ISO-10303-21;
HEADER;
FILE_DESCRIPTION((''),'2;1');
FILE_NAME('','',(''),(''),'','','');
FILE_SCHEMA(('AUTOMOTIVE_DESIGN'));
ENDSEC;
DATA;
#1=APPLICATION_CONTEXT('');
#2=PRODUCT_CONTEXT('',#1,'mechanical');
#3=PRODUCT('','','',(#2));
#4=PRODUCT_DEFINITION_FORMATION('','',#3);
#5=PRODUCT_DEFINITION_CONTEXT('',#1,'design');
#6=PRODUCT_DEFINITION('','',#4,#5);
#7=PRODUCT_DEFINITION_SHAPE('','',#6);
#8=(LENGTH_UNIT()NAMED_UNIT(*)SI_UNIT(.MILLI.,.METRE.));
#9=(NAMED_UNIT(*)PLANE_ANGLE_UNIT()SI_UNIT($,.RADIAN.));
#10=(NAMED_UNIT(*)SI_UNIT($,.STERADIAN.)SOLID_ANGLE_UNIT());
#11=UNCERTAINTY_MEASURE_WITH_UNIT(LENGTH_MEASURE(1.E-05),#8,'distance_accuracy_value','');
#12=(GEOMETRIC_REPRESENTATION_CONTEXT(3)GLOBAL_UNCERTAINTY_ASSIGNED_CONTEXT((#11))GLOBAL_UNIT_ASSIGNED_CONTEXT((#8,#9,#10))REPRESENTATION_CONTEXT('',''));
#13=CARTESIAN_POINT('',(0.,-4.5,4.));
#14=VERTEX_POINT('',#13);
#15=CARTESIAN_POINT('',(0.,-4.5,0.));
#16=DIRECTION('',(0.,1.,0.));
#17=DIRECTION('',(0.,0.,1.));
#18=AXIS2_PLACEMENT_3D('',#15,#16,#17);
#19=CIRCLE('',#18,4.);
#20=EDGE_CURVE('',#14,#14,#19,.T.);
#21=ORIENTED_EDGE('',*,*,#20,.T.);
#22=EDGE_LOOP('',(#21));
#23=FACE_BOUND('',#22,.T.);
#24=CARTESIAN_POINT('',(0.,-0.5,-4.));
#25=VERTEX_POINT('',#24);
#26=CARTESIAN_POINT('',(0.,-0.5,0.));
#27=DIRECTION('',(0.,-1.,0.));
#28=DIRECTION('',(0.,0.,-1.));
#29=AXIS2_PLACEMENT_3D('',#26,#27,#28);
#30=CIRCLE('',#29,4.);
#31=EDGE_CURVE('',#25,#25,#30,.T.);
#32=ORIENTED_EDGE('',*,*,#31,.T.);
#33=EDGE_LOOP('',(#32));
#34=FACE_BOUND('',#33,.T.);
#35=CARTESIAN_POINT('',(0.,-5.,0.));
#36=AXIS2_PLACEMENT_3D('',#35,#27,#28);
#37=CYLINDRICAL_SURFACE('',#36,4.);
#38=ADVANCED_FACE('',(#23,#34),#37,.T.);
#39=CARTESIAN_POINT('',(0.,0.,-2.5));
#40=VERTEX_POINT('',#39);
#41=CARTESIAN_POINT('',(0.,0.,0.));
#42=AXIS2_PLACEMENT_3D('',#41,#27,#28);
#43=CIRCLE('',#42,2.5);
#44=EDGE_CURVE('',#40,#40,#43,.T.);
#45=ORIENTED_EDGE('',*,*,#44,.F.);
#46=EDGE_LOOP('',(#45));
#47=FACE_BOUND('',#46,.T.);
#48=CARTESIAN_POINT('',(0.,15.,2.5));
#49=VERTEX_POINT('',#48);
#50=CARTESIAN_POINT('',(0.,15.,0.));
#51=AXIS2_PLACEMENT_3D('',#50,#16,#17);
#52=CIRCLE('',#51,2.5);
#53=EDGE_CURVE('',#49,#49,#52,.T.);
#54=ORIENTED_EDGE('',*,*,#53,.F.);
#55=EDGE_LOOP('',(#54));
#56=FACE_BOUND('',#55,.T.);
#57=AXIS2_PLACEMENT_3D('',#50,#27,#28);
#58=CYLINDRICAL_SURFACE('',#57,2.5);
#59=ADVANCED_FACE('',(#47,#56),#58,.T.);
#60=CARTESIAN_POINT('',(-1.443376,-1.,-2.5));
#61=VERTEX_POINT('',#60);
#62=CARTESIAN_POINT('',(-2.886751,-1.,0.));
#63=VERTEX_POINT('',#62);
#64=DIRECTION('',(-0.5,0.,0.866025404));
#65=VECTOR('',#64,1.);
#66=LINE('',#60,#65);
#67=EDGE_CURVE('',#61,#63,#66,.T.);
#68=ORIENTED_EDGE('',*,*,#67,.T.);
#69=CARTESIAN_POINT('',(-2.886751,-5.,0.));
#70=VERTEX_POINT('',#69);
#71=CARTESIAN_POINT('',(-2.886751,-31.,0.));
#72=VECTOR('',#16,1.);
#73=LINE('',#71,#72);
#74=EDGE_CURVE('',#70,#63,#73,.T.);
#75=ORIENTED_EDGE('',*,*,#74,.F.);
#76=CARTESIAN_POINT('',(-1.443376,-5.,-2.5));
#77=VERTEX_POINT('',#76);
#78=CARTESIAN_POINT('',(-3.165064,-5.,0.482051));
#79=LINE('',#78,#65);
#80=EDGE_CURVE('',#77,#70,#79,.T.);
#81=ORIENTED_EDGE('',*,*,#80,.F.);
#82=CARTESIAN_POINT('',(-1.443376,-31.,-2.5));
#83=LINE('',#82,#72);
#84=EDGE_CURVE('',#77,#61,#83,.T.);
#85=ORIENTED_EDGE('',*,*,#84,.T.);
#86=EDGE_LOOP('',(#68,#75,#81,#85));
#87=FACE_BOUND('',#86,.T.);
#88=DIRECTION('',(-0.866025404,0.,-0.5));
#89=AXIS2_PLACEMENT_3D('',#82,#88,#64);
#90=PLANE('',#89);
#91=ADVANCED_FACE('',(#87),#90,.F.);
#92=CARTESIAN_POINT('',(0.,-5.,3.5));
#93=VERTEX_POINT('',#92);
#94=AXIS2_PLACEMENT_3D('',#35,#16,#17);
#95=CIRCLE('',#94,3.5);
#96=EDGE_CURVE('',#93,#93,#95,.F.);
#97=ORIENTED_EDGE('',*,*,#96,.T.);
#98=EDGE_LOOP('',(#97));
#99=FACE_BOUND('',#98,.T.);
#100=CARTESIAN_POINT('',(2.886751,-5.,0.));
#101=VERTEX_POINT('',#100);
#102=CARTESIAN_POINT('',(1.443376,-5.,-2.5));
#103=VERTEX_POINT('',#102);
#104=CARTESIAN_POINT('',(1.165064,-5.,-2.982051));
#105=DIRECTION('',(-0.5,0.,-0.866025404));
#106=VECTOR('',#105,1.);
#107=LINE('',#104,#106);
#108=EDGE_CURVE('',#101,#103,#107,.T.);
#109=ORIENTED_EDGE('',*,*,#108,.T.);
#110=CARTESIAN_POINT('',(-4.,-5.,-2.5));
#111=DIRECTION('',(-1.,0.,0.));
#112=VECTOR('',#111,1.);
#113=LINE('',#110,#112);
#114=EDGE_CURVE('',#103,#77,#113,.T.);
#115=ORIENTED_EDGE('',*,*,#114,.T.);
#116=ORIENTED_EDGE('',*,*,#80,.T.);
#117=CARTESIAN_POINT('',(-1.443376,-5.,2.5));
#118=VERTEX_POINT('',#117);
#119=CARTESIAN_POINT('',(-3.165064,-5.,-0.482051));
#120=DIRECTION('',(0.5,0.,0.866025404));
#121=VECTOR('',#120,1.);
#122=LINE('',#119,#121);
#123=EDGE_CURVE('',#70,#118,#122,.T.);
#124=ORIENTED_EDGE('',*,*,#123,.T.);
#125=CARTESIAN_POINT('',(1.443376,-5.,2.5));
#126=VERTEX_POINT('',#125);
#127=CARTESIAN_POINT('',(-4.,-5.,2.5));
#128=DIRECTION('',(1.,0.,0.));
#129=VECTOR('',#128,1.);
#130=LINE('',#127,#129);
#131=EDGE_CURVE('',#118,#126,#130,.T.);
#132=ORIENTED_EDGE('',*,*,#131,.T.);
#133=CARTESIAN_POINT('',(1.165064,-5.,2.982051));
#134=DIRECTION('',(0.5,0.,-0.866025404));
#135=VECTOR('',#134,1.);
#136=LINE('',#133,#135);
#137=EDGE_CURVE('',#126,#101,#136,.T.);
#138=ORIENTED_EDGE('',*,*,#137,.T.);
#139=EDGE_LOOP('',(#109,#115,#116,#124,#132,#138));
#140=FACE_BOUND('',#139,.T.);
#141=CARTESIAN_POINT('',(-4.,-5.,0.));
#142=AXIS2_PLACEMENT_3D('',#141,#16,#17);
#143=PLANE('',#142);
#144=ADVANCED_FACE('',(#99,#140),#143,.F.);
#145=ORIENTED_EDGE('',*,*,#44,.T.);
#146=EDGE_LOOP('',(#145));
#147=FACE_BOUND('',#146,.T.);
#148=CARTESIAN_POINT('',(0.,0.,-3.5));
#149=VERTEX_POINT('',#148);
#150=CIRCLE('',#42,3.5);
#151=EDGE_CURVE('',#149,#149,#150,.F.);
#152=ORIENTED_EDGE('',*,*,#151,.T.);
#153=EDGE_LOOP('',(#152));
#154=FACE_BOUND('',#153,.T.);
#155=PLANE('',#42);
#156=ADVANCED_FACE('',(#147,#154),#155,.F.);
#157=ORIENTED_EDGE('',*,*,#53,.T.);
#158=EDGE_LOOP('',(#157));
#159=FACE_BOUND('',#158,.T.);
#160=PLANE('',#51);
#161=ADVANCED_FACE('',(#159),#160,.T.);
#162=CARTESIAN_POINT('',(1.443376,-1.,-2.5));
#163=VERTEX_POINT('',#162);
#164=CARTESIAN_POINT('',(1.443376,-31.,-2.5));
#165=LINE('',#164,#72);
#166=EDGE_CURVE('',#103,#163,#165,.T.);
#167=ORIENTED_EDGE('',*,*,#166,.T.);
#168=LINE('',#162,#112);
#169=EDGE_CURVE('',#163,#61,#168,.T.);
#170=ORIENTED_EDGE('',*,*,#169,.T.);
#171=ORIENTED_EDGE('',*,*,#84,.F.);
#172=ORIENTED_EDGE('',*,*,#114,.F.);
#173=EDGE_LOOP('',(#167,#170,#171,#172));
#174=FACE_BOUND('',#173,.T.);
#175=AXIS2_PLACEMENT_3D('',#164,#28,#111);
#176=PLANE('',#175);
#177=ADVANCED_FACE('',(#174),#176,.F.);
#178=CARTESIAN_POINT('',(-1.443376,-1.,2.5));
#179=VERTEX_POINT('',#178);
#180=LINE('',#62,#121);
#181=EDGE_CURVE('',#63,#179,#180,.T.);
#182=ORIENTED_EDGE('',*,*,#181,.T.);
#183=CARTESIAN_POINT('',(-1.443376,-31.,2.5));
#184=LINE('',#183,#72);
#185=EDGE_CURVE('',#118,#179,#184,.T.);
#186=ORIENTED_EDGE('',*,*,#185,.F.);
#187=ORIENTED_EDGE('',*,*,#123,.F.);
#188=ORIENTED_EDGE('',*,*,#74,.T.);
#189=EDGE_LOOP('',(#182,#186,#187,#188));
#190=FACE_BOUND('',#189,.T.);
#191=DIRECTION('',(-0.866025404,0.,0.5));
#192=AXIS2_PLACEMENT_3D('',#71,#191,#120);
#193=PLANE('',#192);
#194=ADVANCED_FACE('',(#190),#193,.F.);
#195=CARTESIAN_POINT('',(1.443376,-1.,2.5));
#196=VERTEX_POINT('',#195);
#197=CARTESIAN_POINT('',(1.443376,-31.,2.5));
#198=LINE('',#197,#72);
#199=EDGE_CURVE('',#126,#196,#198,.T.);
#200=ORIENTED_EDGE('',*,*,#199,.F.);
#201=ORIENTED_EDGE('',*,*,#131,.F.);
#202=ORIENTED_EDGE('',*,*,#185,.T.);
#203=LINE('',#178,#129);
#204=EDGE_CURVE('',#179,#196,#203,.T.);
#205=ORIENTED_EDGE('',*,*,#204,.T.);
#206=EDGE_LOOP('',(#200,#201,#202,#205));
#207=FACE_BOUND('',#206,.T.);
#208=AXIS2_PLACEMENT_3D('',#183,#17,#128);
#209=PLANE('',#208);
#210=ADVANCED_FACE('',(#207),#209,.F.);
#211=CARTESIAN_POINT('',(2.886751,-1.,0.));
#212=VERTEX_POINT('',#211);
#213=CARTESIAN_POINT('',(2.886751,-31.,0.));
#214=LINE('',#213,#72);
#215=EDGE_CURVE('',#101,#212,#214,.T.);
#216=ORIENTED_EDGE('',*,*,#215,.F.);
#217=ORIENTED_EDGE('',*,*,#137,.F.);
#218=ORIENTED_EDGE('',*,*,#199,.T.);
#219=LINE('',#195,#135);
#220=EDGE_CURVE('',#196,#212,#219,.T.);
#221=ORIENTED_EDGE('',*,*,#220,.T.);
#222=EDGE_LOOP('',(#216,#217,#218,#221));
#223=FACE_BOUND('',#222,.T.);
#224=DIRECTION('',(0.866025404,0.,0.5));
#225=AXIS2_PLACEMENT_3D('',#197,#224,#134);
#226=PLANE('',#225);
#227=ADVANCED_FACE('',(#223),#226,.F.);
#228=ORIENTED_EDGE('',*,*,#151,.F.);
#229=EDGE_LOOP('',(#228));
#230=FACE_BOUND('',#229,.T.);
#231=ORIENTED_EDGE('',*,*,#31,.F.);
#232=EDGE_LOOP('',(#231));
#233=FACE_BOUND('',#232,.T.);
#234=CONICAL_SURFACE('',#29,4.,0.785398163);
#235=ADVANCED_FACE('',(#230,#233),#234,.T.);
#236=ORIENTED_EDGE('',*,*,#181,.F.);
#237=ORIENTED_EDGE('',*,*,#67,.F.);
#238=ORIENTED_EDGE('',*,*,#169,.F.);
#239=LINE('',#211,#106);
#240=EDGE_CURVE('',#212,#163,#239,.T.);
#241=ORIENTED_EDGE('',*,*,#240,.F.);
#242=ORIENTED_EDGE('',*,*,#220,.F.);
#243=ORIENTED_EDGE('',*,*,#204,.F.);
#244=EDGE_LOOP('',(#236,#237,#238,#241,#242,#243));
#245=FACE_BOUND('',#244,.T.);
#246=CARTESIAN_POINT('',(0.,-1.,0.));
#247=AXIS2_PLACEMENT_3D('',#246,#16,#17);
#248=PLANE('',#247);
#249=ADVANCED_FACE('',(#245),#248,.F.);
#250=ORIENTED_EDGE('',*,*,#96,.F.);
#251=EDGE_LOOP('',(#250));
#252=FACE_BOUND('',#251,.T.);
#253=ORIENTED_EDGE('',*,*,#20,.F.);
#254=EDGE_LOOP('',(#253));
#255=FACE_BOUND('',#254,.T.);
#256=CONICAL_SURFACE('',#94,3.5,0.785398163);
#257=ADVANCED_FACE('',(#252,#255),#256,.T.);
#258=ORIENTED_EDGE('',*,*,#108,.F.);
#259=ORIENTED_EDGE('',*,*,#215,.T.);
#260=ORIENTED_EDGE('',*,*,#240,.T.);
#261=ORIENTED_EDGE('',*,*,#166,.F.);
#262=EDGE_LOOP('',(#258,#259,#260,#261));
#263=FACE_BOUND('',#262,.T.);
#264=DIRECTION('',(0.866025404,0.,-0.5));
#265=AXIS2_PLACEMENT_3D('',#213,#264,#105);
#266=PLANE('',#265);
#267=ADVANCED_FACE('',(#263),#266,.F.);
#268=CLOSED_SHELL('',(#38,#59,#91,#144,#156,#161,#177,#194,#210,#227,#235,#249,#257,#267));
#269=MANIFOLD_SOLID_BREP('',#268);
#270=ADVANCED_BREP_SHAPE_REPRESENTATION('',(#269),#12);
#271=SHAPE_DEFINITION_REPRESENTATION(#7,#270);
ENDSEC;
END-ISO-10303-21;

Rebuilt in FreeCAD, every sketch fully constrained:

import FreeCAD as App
import Part
import Sketcher

V = App.Vector
Q = App.Units.Quantity


def edges_at(feature, points):
    """Names of the edges that pass closest to the given points."""
    edges = feature.Shape.Edges
    near = lambda p: min(range(len(edges)), key=lambda i: edges[i].distToShape(Part.Vertex(*p))[0])
    return sorted({f"Edge{near(p) + 1}" for p in points})


def add_polygon(sketch, points):
    """Adds a closed chain of lines whose ends are joined by coincident constraints."""
    first, n = sketch.GeometryCount, len(points)
    for a, b in zip(points, points[1:] + points[:1]):
        sketch.addGeometry(Part.LineSegment(App.Vector(*a, 0), App.Vector(*b, 0)), False)
    for i in range(n):
        sketch.addConstraint(Sketcher.Constraint("Coincident", first + i, 2, first + (i + 1) % n, 1))

doc = App.newDocument("Part")
body = doc.addObject("PartDesign::Body", "Body")

# Sketch on XZ plane
sketch1 = body.newObject("Sketcher::SketchObject", "Sketch")
sketch1.AttachmentSupport = (doc.getObject("XZ_Plane"), [""])
sketch1.MapMode = "FlatFace"
sketch1.addGeometry(Part.Circle(V(0, 0, 0), V(0, 0, 1), 2.5), False)
sketch1.addConstraint([
    Sketcher.Constraint("Coincident", 0, 3, -1, 1),
    Sketcher.Constraint("Diameter", 0, 5.0),
])
pad1 = body.newObject("PartDesign::Pad", "Pad")
pad1.Profile = sketch1
pad1.Length = 15
pad1.Reversed = True

# Sketch on XY plane
sketch2 = body.newObject("Sketcher::SketchObject", "Sketch001")
sketch2.AttachmentSupport = (doc.getObject("XY_Plane"), [""])
sketch2.MapMode = "FlatFace"
add_polygon(sketch2, [(-4, 0), (-4, -5), (0, -5), (0, 0)])  # lines 0-3
sketch2.addConstraint([
    Sketcher.Constraint("Vertical", 0),
    Sketcher.Constraint("Horizontal", 1),
    Sketcher.Constraint("Vertical", 2),
    Sketcher.Constraint("Horizontal", 3),
    Sketcher.Constraint("Coincident", 2, 2, -1, 1),
    Sketcher.Constraint("DistanceX", 1, 1, 1, 2, 4.0),
    Sketcher.Constraint("DistanceY", 0, 2, 0, 1, 5.0),
])
revolution = body.newObject("PartDesign::Revolution", "Revolution")
revolution.Profile = sketch2
revolution.ReferenceAxis = (sketch2, ["V_Axis"])
revolution.Angle = 360

# Sketch on XZ plane
sketch3 = body.newObject("Sketcher::SketchObject", "Sketch002")
sketch3.AttachmentSupport = (doc.getObject("XZ_Plane"), [""])
sketch3.MapMode = "FlatFace"
sketch3.AttachmentOffset = App.Placement(V(0, 0, 1), App.Rotation())
add_polygon(sketch3, [(2.9, 0), (1.4, -2.5), (-1.4, -2.5), (-2.9, 0), (-1.4, 2.5), (1.4, 2.5)])  # lines 0-5
sketch3.addConstraint([
    Sketcher.Constraint("Horizontal", 1),
    Sketcher.Constraint("Horizontal", 4),
    Sketcher.Constraint("Symmetric", 0, 2, 3, 2, -1, 1),
    Sketcher.Constraint("Symmetric", 2, 2, 5, 2, -1, 1),
    Sketcher.Constraint("PointOnObject", 2, 2, -1),
    Sketcher.Constraint("Parallel", 2, 5),
    Sketcher.Constraint("Vertical", 1, 2, 3, 2),
    Sketcher.Constraint("Angle", 0, Q("-120 deg")),
    Sketcher.Constraint("DistanceY", 1, 2, 3, 2, 5.0),
    Sketcher.Constraint("DistanceX", 1, 2, 1, 1, 2.886751),
])
pocket1 = body.newObject("PartDesign::Pocket", "Pocket")
pocket1.Profile = sketch3
pocket1.Length = 30
pocket1.Reversed = True
doc.recompute()

chamfer = body.newObject("PartDesign::Chamfer", "Chamfer")
chamfer.Base = (pocket1, edges_at(pocket1, [(0, 0, 4), (0, -5, 4)]))
chamfer.Size = 0.5

doc.recompute()
